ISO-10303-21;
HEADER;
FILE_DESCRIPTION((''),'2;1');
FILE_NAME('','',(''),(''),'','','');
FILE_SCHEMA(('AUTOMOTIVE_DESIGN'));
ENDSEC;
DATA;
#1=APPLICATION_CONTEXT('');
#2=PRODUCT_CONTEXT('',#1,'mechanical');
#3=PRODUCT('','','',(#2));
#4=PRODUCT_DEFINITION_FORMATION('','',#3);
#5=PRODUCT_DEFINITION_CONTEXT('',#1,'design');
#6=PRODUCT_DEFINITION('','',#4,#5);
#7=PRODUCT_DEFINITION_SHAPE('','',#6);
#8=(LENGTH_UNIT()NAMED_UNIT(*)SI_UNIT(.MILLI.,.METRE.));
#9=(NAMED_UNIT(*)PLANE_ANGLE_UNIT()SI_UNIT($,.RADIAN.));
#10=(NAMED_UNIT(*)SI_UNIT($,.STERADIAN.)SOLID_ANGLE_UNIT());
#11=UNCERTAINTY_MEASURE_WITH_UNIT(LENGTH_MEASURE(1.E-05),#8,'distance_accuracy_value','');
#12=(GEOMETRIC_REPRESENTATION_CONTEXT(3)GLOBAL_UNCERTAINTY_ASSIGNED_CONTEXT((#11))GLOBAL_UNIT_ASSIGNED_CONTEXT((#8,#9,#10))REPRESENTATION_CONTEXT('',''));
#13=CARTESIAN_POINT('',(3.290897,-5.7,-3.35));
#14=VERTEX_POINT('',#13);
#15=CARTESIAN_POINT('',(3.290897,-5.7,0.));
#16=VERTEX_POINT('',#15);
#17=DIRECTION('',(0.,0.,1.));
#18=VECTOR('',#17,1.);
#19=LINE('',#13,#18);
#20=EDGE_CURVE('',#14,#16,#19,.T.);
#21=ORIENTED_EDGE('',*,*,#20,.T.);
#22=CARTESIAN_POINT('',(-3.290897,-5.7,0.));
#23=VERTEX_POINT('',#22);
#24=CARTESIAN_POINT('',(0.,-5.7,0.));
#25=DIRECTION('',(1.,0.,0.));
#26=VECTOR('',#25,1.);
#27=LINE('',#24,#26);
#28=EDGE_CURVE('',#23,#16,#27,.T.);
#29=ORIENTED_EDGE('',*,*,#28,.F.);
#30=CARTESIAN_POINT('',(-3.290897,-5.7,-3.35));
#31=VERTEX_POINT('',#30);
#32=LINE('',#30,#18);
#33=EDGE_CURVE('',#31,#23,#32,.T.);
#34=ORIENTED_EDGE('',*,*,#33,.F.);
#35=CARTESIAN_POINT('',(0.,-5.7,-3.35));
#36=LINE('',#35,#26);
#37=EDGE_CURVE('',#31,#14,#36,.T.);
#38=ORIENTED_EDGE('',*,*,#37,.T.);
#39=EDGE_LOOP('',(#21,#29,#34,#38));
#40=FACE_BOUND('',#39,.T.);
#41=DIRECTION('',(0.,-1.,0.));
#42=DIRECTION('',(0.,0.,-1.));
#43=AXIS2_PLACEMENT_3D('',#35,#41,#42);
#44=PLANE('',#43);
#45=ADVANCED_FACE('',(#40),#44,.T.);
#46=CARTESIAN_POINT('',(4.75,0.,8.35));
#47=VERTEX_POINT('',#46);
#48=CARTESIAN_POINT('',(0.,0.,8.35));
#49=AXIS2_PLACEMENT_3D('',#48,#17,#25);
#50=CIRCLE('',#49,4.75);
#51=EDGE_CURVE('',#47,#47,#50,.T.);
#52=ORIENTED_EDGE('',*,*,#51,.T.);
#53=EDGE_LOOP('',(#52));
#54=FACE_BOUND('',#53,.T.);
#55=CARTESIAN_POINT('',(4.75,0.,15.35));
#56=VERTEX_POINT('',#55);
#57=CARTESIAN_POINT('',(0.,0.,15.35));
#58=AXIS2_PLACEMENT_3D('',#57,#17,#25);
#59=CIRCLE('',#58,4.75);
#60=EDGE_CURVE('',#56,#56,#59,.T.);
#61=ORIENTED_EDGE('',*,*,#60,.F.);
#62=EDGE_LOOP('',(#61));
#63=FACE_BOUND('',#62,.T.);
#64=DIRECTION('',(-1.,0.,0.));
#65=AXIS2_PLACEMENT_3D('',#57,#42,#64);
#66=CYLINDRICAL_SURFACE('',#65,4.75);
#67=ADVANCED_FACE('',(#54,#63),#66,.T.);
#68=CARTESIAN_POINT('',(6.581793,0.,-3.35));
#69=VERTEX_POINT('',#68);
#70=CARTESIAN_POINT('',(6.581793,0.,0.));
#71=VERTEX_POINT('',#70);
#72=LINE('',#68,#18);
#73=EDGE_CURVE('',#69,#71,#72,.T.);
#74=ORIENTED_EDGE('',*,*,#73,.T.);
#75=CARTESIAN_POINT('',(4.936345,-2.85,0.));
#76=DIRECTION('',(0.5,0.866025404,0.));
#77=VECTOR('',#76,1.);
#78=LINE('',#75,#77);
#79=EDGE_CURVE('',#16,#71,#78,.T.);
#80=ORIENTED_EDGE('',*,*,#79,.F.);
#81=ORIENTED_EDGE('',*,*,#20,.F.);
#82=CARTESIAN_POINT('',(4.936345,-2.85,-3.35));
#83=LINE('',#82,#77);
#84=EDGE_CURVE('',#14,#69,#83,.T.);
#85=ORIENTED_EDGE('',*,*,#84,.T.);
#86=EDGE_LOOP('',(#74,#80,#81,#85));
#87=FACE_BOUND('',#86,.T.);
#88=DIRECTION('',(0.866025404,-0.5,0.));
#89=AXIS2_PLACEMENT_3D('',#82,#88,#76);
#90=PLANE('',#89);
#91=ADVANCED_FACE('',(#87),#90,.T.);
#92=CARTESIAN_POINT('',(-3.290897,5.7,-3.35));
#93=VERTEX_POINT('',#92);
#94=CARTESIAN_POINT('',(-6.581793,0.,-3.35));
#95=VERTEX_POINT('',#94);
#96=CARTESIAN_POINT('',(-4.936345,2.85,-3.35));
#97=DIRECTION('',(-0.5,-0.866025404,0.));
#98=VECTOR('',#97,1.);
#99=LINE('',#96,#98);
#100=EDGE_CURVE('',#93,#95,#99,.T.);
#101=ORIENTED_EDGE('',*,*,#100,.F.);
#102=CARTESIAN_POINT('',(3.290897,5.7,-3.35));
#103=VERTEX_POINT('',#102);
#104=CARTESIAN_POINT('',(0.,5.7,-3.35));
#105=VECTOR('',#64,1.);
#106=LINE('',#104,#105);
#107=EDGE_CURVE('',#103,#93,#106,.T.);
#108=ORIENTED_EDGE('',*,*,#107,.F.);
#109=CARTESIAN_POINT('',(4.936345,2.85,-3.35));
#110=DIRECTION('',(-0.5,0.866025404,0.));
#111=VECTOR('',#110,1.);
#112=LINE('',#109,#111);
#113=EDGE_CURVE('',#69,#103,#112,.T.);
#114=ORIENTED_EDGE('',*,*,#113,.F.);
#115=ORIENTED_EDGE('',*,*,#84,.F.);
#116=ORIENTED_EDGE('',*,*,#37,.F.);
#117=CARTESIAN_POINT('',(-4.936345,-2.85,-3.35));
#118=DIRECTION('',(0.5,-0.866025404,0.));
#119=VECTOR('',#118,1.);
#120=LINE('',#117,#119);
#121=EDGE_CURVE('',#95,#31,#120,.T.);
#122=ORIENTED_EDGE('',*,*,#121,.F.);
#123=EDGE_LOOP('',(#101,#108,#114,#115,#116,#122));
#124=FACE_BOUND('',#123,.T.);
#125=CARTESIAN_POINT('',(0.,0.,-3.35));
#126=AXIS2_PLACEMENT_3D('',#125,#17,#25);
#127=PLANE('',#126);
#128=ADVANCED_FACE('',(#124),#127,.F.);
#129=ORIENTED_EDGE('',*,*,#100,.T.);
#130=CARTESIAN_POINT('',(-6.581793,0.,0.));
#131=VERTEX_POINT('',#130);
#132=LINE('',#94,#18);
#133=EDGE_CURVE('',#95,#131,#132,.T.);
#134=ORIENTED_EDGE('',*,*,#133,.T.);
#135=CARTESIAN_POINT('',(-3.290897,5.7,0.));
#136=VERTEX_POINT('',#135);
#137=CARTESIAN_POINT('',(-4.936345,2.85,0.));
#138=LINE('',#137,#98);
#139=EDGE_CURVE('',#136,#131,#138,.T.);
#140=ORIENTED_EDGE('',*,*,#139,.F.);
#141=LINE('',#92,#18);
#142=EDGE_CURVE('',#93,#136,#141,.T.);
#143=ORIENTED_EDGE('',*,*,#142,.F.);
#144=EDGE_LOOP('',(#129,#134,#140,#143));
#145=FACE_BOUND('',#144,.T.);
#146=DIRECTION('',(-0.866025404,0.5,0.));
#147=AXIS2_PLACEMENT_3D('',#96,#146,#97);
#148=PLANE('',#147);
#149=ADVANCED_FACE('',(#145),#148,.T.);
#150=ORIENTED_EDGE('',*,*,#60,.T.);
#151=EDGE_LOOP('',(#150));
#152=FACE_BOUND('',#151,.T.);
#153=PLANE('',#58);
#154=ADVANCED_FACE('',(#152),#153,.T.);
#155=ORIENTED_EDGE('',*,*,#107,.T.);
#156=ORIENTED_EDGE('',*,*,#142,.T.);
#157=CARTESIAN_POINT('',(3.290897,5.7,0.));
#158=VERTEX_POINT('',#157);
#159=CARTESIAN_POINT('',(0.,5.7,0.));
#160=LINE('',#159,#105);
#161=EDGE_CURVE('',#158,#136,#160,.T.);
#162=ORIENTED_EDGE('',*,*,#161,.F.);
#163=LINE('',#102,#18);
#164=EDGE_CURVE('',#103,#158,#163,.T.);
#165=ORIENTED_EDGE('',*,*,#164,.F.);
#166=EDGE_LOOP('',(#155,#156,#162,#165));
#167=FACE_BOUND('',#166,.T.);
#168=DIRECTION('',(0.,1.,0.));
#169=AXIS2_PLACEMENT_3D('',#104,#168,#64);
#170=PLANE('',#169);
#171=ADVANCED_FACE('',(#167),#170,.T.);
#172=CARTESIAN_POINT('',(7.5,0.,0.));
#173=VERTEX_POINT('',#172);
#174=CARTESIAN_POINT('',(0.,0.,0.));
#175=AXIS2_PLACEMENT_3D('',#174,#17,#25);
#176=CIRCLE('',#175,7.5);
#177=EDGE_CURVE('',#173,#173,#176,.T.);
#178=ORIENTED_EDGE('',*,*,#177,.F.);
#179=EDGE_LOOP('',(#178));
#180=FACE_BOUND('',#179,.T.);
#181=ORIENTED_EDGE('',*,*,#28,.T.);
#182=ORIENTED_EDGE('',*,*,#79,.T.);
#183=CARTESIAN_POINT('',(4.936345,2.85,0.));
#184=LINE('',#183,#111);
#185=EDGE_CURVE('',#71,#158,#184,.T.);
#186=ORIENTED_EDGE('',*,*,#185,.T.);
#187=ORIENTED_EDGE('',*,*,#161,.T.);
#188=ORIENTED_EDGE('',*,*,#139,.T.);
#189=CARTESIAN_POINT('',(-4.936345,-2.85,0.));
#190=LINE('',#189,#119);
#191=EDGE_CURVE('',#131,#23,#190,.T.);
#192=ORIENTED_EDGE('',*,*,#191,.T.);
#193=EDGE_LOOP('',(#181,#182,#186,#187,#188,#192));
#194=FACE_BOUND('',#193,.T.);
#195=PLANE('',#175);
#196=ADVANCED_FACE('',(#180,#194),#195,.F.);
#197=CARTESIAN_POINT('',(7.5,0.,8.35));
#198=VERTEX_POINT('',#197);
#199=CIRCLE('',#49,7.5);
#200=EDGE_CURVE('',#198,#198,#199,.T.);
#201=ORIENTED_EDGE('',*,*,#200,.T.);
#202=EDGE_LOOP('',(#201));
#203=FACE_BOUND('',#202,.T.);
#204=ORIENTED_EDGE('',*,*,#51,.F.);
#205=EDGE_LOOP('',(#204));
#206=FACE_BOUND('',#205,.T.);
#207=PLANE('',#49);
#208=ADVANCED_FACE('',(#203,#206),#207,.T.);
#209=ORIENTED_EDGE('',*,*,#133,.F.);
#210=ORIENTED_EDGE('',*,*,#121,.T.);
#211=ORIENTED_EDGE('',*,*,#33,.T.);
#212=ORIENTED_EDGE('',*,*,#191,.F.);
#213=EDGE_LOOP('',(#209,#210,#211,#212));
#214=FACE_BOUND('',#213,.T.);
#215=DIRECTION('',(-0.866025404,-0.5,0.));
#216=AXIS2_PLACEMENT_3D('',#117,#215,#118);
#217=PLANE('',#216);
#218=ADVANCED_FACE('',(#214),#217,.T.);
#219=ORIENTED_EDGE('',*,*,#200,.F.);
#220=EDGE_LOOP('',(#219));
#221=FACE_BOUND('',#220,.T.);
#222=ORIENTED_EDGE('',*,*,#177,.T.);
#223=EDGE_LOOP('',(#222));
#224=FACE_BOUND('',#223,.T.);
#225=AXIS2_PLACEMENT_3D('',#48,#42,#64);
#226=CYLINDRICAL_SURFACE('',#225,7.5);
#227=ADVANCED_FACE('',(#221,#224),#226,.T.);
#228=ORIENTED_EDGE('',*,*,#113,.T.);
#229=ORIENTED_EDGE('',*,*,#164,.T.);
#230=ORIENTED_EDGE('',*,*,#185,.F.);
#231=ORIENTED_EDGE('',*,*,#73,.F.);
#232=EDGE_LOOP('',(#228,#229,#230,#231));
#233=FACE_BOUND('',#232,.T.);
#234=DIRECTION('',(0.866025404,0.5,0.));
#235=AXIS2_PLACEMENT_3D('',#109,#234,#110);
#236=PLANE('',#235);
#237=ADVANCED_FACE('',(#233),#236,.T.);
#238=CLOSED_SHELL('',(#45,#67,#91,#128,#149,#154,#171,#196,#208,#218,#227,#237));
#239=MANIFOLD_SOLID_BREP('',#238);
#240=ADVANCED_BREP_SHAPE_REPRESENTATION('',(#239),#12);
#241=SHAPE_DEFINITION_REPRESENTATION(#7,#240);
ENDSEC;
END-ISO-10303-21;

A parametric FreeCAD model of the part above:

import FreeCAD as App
import Part
import Sketcher

V = App.Vector
Q = App.Units.Quantity


def add_polygon(sketch, points):
    """Adds a closed chain of lines whose ends are joined by coincident constraints."""
    first, n = sketch.GeometryCount, len(points)
    for a, b in zip(points, points[1:] + points[:1]):
        sketch.addGeometry(Part.LineSegment(App.Vector(*a, 0), App.Vector(*b, 0)), False)
    for i in range(n):
        sketch.addConstraint(Sketcher.Constraint("Coincident", first + i, 2, first + (i + 1) % n, 1))

doc = App.newDocument("Part")
body = doc.addObject("PartDesign::Body", "Body")

# Sketch on XY plane
sketch1 = body.newObject("Sketcher::SketchObject", "Sketch")
sketch1.AttachmentSupport = (doc.getObject("XY_Plane"), [""])
sketch1.MapMode = "FlatFace"
sketch1.addGeometry(Part.Circle(V(0, 0, 0), V(0, 0, 1), 7.5), False)
sketch1.addConstraint(Sketcher.Constraint("Coincident", 0, 3, -1, 1))
sketch1.addConstraint(Sketcher.Constraint("Diameter", 0, Q("15 mm")))
pad1 = body.newObject("PartDesign::Pad", "Pad")
pad1.Profile = sketch1
pad1.Length = 8.35

# Sketch on XY plane
sketch2 = body.newObject("Sketcher::SketchObject", "Sketch001")
sketch2.AttachmentSupport = (doc.getObject("XY_Plane"), [""])
sketch2.MapMode = "FlatFace"
add_polygon(sketch2, [(-3.290897, -5.7), (3.290897, -5.7), (6.581793, 0), (3.290897, 5.7), (-3.290897, 5.7), (-6.581793, 0)])  # lines 0-5
sketch2.addConstraint(Sketcher.Constraint("Horizontal", 0))
sketch2.addConstraint(Sketcher.Constraint("Horizontal", 3))
sketch2.addConstraint(Sketcher.Constraint("Symmetric", 0, 2, 3, 2, -1, 1))
sketch2.addConstraint(Sketcher.Constraint("Symmetric", 1, 2, 4, 2, -1, 1))
sketch2.addConstraint(Sketcher.Constraint("PointOnObject", 1, 2, -1))
sketch2.addConstraint(Sketcher.Constraint("Parallel", 2, 5))
sketch2.addConstraint(Sketcher.Constraint("Vertical", 0, 2, 2, 2))
sketch2.addConstraint(Sketcher.Constraint("Angle", 1, Q("60 deg")))
sketch2.addConstraint(Sketcher.Constraint("DistanceY", 0, 2, -1, 1, Q("5.7 mm")))
sketch2.addConstraint(Sketcher.Constraint("DistanceX", 0, 1, 0, 2, Q("6.581793 mm")))
pad2 = body.newObject("PartDesign::Pad", "Pad001")
pad2.Profile = sketch2
pad2.Length = 3.35
pad2.Reversed = True

# Sketch on XY plane
sketch3 = body.newObject("Sketcher::SketchObject", "Sketch002")
sketch3.AttachmentSupport = (doc.getObject("XY_Plane"), [""])
sketch3.MapMode = "FlatFace"
sketch3.AttachmentOffset = App.Placement(V(0, 0, 8.35), App.Rotation())
sketch3.addGeometry(Part.Circle(V(0, 0, 0), V(0, 0, 1), 4.75), False)
sketch3.addConstraint(Sketcher.Constraint("Coincident", 0, 3, -1, 1))
sketch3.addConstraint(Sketcher.Constraint("Diameter", 0, Q("9.5 mm")))
pad3 = body.newObject("PartDesign::Pad", "Pad002")
pad3.Profile = sketch3
pad3.Length = 7

doc.recompute()
